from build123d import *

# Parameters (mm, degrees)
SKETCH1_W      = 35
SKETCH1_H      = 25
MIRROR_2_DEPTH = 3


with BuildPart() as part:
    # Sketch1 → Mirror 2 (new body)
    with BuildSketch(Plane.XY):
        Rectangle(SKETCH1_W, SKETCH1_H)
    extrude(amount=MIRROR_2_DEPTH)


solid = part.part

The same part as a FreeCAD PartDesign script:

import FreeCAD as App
import Part
import Sketcher

V = App.Vector


def add_polygon(sketch, points):
    """Adds a closed chain of lines whose ends are joined by coincident constraints."""
    first, n = sketch.GeometryCount, len(points)
    for a, b in zip(points, points[1:] + points[:1]):
        sketch.addGeometry(Part.LineSegment(App.Vector(*a, 0), App.Vector(*b, 0)), False)
    for i in range(n):
        sketch.addConstraint(Sketcher.Constraint("Coincident", first + i, 2, first + (i + 1) % n, 1))

doc = App.newDocument("Part")
params = doc.addObject("Spreadsheet::Sheet", "Params")
for row, (alias, value) in enumerate([
    ("sketch1_width", "35 mm"),
    ("sketch1_height", "25 mm"),
    ("pad1_length", "3 mm"),
], start=1):
    params.set(f"A{row}", alias)
    params.set(f"B{row}", "=" + value)
    params.setAlias(f"B{row}", alias)

body = doc.addObject("PartDesign::Body", "Body")

# Sketch on XY plane
sketch1 = body.newObject("Sketcher::SketchObject", "Sketch")
sketch1.AttachmentSupport = (doc.getObject("XY_Plane"), [""])
sketch1.MapMode = "FlatFace"
add_polygon(sketch1, [(-18, 12), (-18, -12), (18, -12), (18, 12)])  # lines 0-3
sketch1.addConstraint(Sketcher.Constraint("Vertical", 0))
sketch1.addConstraint(Sketcher.Constraint("Horizontal", 1))
sketch1.addConstraint(Sketcher.Constraint("Vertical", 2))
sketch1.addConstraint(Sketcher.Constraint("Horizontal", 3))
sketch1.addConstraint(Sketcher.Constraint("Symmetric", 0, 2, 2, 2, -1, 1))
sketch1.addConstraint(Sketcher.Constraint("DistanceX", 1, 1, 1, 2, 35.0))
sketch1.addConstraint(Sketcher.Constraint("DistanceY", 0, 2, 0, 1, 25.0))
sketch1.setExpression("Constraints[9]", "Params.sketch1_width")
sketch1.setExpression("Constraints[10]", "Params.sketch1_height")
pad1 = body.newObject("PartDesign::Pad", "Pad")
pad1.Profile = sketch1
pad1.setExpression("Length", "Params.pad1_length")

doc.recompute()
